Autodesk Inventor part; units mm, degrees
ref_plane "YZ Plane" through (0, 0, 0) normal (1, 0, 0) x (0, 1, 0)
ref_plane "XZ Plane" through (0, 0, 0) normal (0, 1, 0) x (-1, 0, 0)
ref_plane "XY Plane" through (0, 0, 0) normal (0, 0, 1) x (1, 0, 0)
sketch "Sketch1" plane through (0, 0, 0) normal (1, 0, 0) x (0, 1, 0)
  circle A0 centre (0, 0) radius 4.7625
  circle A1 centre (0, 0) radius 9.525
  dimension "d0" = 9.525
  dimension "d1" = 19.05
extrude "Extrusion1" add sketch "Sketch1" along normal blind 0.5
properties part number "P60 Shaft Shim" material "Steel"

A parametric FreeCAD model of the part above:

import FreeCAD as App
import Part
import Sketcher

V = App.Vector
Q = App.Units.Quantity

doc = App.newDocument("Part")
body = doc.addObject("PartDesign::Body", "Body")

# Sketch on YZ plane
sketch1 = body.newObject("Sketcher::SketchObject", "Sketch")
sketch1.AttachmentSupport = (doc.getObject("YZ_Plane"), [""])
sketch1.MapMode = "FlatFace"
sketch1.addGeometry(Part.Circle(V(0, 0, 0), V(0, 0, 1), 9.525), False)
sketch1.addGeometry(Part.Circle(V(0, 0, 0), V(0, 0, 1), 4.7625), False)
sketch1.addConstraint(Sketcher.Constraint("Coincident", 0, 3, -1, 1))
sketch1.addConstraint(Sketcher.Constraint("Coincident", 1, 3, -1, 1))
sketch1.addConstraint(Sketcher.Constraint("Diameter", 0, Q("0.75 in")))
sketch1.addConstraint(Sketcher.Constraint("Diameter", 1, Q("0.375 in")))
pad1 = body.newObject("PartDesign::Pad", "Pad")
pad1.Profile = sketch1
pad1.Length = 0.5

doc.recompute()
